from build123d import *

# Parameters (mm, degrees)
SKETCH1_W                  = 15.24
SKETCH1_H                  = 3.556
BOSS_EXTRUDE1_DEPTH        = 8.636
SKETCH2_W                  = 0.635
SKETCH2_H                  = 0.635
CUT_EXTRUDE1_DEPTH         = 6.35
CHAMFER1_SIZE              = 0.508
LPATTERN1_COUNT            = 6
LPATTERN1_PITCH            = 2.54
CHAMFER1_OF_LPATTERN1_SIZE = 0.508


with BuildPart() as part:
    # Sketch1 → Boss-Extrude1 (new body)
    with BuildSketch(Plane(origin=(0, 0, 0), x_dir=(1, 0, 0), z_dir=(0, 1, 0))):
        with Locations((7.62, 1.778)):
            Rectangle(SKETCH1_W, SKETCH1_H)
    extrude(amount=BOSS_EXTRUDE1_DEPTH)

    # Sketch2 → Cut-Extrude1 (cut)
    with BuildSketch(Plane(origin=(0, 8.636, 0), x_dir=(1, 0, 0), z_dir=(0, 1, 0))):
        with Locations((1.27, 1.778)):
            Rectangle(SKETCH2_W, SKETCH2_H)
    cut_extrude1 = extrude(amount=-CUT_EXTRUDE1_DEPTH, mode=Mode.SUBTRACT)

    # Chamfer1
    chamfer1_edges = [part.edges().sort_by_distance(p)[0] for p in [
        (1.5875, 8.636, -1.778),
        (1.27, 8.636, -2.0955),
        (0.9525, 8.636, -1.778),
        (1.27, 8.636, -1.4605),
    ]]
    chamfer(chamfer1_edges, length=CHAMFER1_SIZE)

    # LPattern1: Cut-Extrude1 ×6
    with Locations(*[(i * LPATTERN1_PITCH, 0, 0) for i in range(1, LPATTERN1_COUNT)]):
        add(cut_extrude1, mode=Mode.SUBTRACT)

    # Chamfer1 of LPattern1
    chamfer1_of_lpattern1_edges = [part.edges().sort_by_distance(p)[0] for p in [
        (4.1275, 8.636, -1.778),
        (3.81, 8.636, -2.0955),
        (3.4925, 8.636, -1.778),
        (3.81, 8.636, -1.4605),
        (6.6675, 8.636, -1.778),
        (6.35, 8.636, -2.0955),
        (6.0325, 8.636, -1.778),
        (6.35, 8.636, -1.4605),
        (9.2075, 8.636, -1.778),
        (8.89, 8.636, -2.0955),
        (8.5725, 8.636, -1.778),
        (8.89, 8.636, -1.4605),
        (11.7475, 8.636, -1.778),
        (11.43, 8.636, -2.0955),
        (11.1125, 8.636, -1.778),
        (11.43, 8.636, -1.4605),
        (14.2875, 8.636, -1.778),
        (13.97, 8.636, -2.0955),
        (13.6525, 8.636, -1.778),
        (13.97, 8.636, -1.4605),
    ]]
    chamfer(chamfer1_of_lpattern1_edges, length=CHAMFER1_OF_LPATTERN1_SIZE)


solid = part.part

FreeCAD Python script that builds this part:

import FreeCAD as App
import Part
import Sketcher
Q = App.Units.Quantity


def edges_at(feature, points):
    """Names of the edges that pass closest to the given points."""
    edges = feature.Shape.Edges
    near = lambda p: min(range(len(edges)), key=lambda i: edges[i].distToShape(Part.Vertex(*p))[0])
    return sorted({f"Edge{near(p) + 1}" for p in points})

doc = App.newDocument("Part")
body = doc.addObject("PartDesign::Body", "Body")

# Sketch on XZ plane
sketch1 = body.newObject("Sketcher::SketchObject", "Sketch")
sketch1.AttachmentSupport = (doc.getObject("XZ_Plane"), [""])
sketch1.MapMode = "FlatFace"
sketch1.addGeometry([
    Part.LineSegment(App.Vector(0, -3.6, 0), App.Vector(0, 0, 0)),
    Part.LineSegment(App.Vector(0, 0, 0), App.Vector(15.2, 0, 0)),
    Part.LineSegment(App.Vector(15.2, 0, 0), App.Vector(15.2, -3.6, 0)),
    Part.LineSegment(App.Vector(15.2, -3.6, 0), App.Vector(0, -3.6, 0)),
], False)
sketch1.addConstraint([
    Sketcher.Constraint("Coincident", 0, 2, 1, 1),
    Sketcher.Constraint("Coincident", 1, 2, 2, 1),
    Sketcher.Constraint("Coincident", 2, 2, 3, 1),
    Sketcher.Constraint("Coincident", 3, 2, 0, 1),
    Sketcher.Constraint("Vertical", 0),
    Sketcher.Constraint("Horizontal", 1),
    Sketcher.Constraint("Vertical", 2),
    Sketcher.Constraint("Horizontal", 3),
    Sketcher.Constraint("Coincident", 0, 2, -1, 1),
    Sketcher.Constraint("DistanceX", 1, 1, 1, 2, Q("0.6 in")),
    Sketcher.Constraint("DistanceY", 0, 1, 0, 2, Q("0.14 in")),
])
pad1 = body.newObject("PartDesign::Pad", "Pad")
pad1.Profile = sketch1
pad1.Length = Q("0.34 in")
pad1.Reversed = True

# Sketch on XZ plane
sketch2 = body.newObject("Sketcher::SketchObject", "Sketch001")
sketch2.AttachmentSupport = (doc.getObject("XZ_Plane"), [""])
sketch2.MapMode = "FlatFace"
sketch2.AttachmentOffset = App.Placement(App.Vector(0, 0, -0.34 * 25.4), App.Rotation())
sketch2.addGeometry([
    Part.LineSegment(App.Vector(1, -2.1, 0), App.Vector(1, -1.5, 0)),
    Part.LineSegment(App.Vector(1, -1.5, 0), App.Vector(1.6, -1.5, 0)),
    Part.LineSegment(App.Vector(1.6, -1.5, 0), App.Vector(1.6, -2.1, 0)),
    Part.LineSegment(App.Vector(1.6, -2.1, 0), App.Vector(1, -2.1, 0)),
], False)
sketch2.addConstraint([
    Sketcher.Constraint("Coincident", 0, 2, 1, 1),
    Sketcher.Constraint("Coincident", 1, 2, 2, 1),
    Sketcher.Constraint("Coincident", 2, 2, 3, 1),
    Sketcher.Constraint("Coincident", 3, 2, 0, 1),
    Sketcher.Constraint("Vertical", 0),
    Sketcher.Constraint("Horizontal", 1),
    Sketcher.Constraint("Vertical", 2),
    Sketcher.Constraint("Horizontal", 3),
    Sketcher.Constraint("Equal", 3, 0),
    Sketcher.Constraint("DistanceX", 1, 1, 1, 2, Q("0.025 in")),
    Sketcher.Constraint("DistanceX", -1, 1, 1, 2, Q("0.0625 in")),
    Sketcher.Constraint("DistanceY", 0, 2, -1, 1, Q("0.0575 in")),
])
pocket1 = body.newObject("PartDesign::Pocket", "Pocket")
pocket1.Profile = sketch2
pocket1.Length = Q("0.25 in")
pocket1.Reversed = True
doc.recompute()

chamfer = body.newObject("PartDesign::Chamfer", "Chamfer")
chamfer.Base = (pocket1, edges_at(pocket1, [
    (1.587, 8.636, -1.778),
    (1.27, 8.636, -2.095),
    (0.953, 8.636, -1.778),
    (1.27, 8.636, -1.46),
]))
chamfer.Size = Q("0.02 in")
doc.recompute()

linearpattern = body.newObject("PartDesign::LinearPattern", "LinearPattern")
linearpattern.Originals = [pocket1]
linearpattern.Direction = (doc.getObject("X_Axis"), [""])
linearpattern.Mode = "offset"
linearpattern.Offset = Q("0.1 in")
linearpattern.Occurrences = 6
body.Tip = linearpattern
doc.recompute()

chamfer2 = body.newObject("PartDesign::Chamfer", "Chamfer001")
chamfer2.Base = (linearpattern, edges_at(linearpattern, [
    (4.128, 8.636, -1.778),
    (3.81, 8.636, -2.095),
    (3.493, 8.636, -1.778),
    (3.81, 8.636, -1.46),
    (6.668, 8.636, -1.778),
    (6.35, 8.636, -2.095),
    (6.032, 8.636, -1.778),
    (6.35, 8.636, -1.46),
    (9.207, 8.636, -1.778),
    (8.89, 8.636, -2.095),
    (8.572, 8.636, -1.778),
    (8.89, 8.636, -1.46),
    (11.748, 8.636, -1.778),
    (11.43, 8.636, -2.095),
    (11.113, 8.636, -1.778),
    (11.43, 8.636, -1.46),
    (14.287, 8.636, -1.778),
    (13.97, 8.636, -2.095),
    (13.652, 8.636, -1.778),
    (13.97, 8.636, -1.46),
]))
chamfer2.Size = Q("0.02 in")

doc.recompute()
